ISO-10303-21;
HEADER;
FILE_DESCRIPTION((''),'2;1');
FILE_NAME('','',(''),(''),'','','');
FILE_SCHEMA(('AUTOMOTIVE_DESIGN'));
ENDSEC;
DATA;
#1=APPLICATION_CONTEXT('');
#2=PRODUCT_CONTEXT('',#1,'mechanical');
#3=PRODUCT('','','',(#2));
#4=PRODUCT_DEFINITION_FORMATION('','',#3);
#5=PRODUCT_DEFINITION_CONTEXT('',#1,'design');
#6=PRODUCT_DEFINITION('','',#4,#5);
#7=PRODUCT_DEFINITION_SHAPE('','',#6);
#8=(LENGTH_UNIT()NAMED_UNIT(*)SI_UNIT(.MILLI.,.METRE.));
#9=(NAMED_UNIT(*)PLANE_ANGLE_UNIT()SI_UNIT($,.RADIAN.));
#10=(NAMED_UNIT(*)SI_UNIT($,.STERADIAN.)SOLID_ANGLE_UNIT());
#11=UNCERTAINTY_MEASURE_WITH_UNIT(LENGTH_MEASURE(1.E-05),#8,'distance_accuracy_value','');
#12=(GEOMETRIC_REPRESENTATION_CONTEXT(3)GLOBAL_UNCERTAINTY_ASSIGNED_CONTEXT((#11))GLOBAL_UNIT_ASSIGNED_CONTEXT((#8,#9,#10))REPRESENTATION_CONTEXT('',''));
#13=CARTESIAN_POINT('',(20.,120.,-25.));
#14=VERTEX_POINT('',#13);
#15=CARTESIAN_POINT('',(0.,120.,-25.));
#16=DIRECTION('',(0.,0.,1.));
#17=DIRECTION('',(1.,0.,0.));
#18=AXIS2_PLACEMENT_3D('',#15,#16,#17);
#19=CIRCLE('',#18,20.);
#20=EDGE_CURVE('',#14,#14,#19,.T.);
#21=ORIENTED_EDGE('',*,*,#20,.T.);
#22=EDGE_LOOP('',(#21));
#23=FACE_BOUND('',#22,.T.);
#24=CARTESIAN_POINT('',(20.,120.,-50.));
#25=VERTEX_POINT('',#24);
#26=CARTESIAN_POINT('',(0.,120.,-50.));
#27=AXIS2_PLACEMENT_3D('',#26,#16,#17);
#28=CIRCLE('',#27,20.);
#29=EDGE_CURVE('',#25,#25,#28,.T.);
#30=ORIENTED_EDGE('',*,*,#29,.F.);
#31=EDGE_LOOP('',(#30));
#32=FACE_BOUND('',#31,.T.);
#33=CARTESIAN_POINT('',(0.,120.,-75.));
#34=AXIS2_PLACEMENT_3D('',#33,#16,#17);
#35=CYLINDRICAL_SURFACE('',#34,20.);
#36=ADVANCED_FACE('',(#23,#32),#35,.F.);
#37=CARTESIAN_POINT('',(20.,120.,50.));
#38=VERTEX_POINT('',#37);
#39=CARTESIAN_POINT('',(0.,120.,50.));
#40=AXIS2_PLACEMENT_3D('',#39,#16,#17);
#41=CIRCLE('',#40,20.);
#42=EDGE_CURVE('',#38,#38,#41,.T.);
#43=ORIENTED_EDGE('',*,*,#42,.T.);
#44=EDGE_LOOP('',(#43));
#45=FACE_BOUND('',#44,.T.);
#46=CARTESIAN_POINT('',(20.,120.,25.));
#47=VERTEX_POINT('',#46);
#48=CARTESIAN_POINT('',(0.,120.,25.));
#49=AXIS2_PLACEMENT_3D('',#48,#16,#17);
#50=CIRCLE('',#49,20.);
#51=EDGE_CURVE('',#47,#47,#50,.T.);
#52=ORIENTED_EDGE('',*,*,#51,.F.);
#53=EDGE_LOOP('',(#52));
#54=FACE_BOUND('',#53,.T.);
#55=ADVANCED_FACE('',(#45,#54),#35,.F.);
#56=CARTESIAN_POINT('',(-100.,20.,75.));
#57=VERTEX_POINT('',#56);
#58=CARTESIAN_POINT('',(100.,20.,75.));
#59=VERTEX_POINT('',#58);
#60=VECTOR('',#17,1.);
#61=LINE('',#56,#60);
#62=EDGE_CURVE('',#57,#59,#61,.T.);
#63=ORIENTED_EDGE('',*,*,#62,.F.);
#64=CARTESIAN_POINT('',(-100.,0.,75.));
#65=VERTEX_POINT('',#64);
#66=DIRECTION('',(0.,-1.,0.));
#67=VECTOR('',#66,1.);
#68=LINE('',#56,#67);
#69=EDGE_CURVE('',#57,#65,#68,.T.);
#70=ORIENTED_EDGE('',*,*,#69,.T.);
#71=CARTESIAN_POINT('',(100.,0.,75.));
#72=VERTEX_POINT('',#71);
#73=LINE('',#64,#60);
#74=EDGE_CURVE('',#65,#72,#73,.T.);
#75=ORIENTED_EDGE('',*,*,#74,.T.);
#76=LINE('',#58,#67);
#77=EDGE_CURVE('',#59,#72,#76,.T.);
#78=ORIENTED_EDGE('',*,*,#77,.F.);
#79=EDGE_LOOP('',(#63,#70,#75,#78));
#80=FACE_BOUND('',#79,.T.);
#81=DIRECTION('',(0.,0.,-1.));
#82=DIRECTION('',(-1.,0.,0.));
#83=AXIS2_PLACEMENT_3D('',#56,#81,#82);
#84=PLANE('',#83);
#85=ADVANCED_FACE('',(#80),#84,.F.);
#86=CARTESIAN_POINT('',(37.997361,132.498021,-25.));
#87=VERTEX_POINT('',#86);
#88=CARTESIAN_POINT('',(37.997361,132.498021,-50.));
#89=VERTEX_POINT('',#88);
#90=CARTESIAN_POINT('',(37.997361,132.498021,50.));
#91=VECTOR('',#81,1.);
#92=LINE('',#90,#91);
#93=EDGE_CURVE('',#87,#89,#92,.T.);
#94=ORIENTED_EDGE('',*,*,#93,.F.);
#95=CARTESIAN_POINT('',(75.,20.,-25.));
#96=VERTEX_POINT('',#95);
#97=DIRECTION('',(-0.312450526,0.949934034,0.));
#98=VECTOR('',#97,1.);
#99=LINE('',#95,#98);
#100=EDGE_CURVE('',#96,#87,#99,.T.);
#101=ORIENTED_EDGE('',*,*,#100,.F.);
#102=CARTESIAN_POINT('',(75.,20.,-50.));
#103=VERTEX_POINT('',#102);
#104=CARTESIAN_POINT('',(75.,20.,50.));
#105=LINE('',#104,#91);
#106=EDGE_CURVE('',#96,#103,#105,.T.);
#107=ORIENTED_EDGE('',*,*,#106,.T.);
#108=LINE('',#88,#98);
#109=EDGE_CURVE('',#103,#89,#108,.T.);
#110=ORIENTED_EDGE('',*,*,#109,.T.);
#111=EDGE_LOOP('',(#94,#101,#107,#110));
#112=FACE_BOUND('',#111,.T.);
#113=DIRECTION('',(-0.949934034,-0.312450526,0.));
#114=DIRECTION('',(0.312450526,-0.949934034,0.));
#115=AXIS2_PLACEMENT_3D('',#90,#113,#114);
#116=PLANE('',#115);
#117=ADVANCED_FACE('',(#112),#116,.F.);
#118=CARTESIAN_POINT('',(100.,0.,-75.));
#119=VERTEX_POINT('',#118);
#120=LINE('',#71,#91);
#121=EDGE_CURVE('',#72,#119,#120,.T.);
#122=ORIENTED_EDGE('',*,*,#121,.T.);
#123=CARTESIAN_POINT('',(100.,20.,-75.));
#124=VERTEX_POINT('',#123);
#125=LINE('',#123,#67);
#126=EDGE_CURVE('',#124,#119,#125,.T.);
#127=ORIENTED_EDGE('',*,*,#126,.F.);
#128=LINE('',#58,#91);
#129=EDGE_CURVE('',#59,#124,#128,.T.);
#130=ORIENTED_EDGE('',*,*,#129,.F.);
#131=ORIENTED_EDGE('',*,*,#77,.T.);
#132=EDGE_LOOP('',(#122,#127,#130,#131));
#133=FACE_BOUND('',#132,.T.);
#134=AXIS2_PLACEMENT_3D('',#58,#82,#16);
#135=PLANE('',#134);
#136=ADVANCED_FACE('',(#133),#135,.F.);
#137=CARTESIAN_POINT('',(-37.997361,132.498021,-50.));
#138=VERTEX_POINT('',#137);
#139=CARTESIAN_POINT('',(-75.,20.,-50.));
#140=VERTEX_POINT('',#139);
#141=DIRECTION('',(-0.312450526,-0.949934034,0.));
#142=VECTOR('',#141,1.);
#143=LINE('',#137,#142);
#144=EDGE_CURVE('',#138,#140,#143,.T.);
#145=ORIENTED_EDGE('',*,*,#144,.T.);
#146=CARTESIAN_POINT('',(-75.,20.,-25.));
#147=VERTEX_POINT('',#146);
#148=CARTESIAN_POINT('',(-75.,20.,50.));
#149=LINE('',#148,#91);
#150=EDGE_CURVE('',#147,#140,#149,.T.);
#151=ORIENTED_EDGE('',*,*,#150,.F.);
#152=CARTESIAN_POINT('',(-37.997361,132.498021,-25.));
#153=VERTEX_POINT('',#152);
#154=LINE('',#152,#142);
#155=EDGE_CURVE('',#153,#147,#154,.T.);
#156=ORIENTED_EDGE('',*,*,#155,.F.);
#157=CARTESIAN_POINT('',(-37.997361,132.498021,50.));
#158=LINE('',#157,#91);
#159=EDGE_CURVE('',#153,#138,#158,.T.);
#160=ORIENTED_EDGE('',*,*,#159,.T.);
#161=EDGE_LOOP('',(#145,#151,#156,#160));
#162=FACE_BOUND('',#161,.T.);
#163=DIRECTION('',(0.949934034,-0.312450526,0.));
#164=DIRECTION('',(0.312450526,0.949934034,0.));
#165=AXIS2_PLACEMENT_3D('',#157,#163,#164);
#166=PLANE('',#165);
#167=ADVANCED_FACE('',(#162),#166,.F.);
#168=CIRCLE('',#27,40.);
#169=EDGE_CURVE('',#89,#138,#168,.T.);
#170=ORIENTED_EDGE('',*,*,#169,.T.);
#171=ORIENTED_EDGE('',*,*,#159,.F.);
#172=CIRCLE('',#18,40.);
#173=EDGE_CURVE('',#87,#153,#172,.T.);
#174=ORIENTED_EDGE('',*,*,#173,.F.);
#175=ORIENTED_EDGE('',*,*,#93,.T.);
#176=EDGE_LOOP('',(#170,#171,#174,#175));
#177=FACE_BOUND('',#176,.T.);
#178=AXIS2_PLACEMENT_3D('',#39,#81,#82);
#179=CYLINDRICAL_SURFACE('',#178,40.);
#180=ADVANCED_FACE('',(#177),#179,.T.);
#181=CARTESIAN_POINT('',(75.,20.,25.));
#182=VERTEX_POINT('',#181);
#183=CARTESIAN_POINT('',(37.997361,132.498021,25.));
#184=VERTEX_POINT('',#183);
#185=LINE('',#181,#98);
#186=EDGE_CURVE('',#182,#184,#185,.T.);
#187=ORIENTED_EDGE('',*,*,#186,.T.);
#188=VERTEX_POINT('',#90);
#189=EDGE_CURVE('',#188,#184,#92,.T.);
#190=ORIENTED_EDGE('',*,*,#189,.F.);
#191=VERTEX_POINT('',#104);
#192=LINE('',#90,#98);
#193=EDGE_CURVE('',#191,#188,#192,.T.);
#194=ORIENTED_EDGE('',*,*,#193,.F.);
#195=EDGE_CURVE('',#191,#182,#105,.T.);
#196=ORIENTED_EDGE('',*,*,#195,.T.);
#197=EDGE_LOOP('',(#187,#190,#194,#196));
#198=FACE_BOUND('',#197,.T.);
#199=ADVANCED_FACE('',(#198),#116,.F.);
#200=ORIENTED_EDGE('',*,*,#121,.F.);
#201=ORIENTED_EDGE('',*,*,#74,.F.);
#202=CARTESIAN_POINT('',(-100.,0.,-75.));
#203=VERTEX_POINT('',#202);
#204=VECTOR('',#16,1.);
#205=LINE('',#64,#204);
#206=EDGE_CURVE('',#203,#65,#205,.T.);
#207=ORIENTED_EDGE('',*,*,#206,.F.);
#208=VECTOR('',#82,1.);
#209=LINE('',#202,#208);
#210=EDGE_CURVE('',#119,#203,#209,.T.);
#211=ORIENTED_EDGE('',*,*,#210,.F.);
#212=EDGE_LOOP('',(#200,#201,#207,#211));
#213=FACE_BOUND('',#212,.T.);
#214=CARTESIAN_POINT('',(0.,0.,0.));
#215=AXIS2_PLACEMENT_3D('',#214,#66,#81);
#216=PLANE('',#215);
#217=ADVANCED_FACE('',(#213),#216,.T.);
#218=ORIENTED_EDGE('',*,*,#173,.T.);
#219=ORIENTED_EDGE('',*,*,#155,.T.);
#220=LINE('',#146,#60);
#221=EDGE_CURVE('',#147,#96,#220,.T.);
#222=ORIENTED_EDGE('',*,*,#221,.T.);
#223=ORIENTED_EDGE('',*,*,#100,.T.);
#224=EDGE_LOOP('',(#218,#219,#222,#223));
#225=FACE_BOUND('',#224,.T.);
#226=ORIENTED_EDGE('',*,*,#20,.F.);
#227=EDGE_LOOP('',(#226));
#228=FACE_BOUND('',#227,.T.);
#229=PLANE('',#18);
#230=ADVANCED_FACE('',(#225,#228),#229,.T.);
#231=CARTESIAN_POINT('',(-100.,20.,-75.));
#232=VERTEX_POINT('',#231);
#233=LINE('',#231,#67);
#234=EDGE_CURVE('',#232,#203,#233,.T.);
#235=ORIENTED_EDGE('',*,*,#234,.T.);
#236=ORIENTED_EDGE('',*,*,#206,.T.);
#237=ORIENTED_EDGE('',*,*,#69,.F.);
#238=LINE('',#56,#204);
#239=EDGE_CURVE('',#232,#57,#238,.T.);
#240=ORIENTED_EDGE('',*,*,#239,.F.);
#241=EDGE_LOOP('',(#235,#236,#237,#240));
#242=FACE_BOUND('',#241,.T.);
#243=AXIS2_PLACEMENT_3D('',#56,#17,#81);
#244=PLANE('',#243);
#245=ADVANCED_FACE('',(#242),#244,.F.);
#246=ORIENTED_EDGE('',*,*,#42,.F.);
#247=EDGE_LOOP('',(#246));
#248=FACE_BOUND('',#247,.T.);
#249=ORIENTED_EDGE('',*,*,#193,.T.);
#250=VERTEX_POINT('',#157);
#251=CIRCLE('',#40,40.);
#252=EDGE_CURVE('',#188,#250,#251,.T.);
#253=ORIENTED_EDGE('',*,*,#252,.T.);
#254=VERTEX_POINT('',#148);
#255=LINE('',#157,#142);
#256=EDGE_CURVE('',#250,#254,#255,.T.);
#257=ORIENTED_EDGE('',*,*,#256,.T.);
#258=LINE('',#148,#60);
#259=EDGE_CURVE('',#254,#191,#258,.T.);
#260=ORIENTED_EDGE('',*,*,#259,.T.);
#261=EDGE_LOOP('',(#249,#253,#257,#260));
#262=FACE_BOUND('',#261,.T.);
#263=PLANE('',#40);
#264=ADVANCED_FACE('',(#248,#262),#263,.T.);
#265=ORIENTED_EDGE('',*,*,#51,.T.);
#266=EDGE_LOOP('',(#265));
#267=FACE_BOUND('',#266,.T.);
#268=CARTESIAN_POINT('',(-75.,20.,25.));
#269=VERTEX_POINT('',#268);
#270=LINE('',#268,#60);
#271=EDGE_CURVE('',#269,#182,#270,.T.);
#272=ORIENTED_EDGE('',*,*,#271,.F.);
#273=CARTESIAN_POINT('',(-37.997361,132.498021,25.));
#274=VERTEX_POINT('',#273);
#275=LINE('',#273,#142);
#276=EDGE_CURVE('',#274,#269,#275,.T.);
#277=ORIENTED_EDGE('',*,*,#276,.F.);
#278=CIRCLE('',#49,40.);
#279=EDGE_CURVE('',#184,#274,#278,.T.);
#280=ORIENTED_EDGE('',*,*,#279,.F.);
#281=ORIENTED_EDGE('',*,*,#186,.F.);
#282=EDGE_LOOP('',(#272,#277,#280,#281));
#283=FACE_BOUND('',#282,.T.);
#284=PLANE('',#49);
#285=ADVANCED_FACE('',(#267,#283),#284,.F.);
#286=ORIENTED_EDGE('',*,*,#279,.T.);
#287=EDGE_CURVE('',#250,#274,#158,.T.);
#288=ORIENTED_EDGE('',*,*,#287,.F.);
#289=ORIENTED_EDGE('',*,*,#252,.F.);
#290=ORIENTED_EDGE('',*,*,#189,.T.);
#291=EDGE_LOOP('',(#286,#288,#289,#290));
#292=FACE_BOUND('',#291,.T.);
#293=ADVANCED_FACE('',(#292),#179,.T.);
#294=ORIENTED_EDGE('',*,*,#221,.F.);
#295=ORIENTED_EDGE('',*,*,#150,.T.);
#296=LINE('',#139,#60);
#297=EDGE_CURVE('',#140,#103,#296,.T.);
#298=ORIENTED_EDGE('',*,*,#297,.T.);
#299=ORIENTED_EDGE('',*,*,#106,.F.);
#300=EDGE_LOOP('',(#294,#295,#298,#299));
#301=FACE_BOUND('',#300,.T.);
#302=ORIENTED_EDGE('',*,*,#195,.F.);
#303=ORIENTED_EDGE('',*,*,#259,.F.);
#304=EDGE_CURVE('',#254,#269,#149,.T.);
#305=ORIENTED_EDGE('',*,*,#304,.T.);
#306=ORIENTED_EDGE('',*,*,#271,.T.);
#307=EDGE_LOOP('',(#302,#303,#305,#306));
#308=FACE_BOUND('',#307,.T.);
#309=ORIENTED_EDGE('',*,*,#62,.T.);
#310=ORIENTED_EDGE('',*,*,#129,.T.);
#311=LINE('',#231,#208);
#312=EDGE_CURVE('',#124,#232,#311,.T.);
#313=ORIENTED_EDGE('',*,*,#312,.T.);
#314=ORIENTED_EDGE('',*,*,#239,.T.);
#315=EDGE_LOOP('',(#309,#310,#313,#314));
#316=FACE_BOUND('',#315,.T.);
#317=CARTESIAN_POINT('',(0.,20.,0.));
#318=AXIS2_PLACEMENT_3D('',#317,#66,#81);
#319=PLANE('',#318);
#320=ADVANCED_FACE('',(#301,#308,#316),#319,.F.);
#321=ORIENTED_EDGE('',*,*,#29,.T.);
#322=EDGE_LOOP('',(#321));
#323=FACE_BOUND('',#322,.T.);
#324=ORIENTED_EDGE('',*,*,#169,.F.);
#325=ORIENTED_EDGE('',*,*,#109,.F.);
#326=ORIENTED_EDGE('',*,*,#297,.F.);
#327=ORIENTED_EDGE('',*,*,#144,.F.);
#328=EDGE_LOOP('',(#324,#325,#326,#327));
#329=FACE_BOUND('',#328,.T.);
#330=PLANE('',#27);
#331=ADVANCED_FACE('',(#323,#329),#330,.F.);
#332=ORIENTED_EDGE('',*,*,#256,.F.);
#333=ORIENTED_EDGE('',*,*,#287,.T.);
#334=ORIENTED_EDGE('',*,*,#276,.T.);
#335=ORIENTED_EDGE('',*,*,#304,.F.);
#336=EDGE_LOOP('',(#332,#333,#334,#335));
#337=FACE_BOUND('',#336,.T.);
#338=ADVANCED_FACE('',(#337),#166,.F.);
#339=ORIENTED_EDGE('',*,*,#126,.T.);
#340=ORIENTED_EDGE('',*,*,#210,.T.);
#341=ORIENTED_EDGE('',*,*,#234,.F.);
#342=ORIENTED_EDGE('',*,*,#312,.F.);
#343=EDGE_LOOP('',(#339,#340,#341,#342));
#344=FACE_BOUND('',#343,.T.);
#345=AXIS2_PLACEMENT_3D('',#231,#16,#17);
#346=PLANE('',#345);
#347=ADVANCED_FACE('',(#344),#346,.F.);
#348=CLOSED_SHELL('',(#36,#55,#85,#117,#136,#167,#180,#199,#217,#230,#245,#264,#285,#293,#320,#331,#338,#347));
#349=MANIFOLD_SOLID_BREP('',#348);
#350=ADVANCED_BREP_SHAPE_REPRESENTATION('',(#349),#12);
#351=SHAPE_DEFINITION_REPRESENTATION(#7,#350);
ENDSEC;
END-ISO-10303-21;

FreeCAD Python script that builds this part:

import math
import FreeCAD as App
import Part
import Sketcher


def add_polygon(sketch, points):
    """Adds a closed chain of lines whose ends are joined by coincident constraints."""
    first, n = sketch.GeometryCount, len(points)
    for a, b in zip(points, points[1:] + points[:1]):
        sketch.addGeometry(Part.LineSegment(App.Vector(*a, 0), App.Vector(*b, 0)), False)
    for i in range(n):
        sketch.addConstraint(Sketcher.Constraint("Coincident", first + i, 2, first + (i + 1) % n, 1))

doc = App.newDocument("Part")
body = doc.addObject("PartDesign::Body", "Body")

# Sketch on XZ plane
sketch1 = body.newObject("Sketcher::SketchObject", "Sketch")
sketch1.AttachmentSupport = (doc.getObject("XZ_Plane"), [""])
sketch1.MapMode = "FlatFace"
add_polygon(sketch1, [(-100, -75), (-100, 75), (100, 75), (100, -75)])  # lines 0-3
sketch1.addConstraint([
    Sketcher.Constraint("Vertical", 0),
    Sketcher.Constraint("Horizontal", 1),
    Sketcher.Constraint("Vertical", 2),
    Sketcher.Constraint("Horizontal", 3),
    Sketcher.Constraint("Symmetric", 0, 2, 2, 2, -1, 1),
    Sketcher.Constraint("DistanceX", 1, 1, 1, 2, 200.0),
    Sketcher.Constraint("DistanceY", 0, 1, 0, 2, 150.0),
])
pad1 = body.newObject("PartDesign::Pad", "Pad")
pad1.Profile = sketch1
pad1.Length = 20
pad1.Reversed = True

# Sketch on XY plane
sketch2 = body.newObject("Sketcher::SketchObject", "Sketch001")
sketch2.AttachmentSupport = (doc.getObject("XY_Plane"), [""])
sketch2.MapMode = "FlatFace"
sketch2.addGeometry([
    Part.LineSegment(App.Vector(-37.997361, 132.498021, 0), App.Vector(-75, 20, 0)),
    Part.LineSegment(App.Vector(-75, 20, 0), App.Vector(75, 20, 0)),
    Part.LineSegment(App.Vector(75, 20, 0), App.Vector(37.997361, 132.498021, 0)),
    Part.ArcOfCircle(Part.Circle(App.Vector(0, 120, 0), App.Vector(0, 0, 1), 40), math.radians(18.206973), math.radians(161.793027)),
], False)
sketch2.addConstraint([
    Sketcher.Constraint("Coincident", 0, 2, 1, 1),
    Sketcher.Constraint("Coincident", 1, 2, 2, 1),
    Sketcher.Constraint("Tangent", 2, 2, 3, 1),
    Sketcher.Constraint("Tangent", 3, 2, 0, 1),
    Sketcher.Constraint("Horizontal", 1),
    Sketcher.Constraint("Symmetric", 2, 2, 3, 2, -2),
    Sketcher.Constraint("Radius", 3, 40.0),
    Sketcher.Constraint("DistanceX", 1, 1, 1, 2, 150.0),
    Sketcher.Constraint("DistanceY", -1, 1, 3, 3, 120.0),
    Sketcher.Constraint("DistanceY", -1, 1, 0, 2, 20.0),
])
pad2 = body.newObject("PartDesign::Pad", "Pad001")
pad2.Profile = sketch2
pad2.Length = 100
pad2.Midplane = True

# Sketch on XY plane
sketch3 = body.newObject("Sketcher::SketchObject", "Sketch002")
sketch3.AttachmentSupport = (doc.getObject("XY_Plane"), [""])
sketch3.MapMode = "FlatFace"
sketch3.addGeometry([
    Part.LineSegment(App.Vector(-37.997361, 132.498021, 0), App.Vector(-75, 20, 0)),
    Part.LineSegment(App.Vector(-75, 20, 0), App.Vector(75, 20, 0)),
    Part.LineSegment(App.Vector(75, 20, 0), App.Vector(37.997361, 132.498021, 0)),
    Part.ArcOfCircle(Part.Circle(App.Vector(0, 120, 0), App.Vector(0, 0, 1), 40), math.radians(18.206973), math.radians(161.793027)),
], False)
sketch3.addConstraint([
    Sketcher.Constraint("Coincident", 0, 2, 1, 1),
    Sketcher.Constraint("Coincident", 1, 2, 2, 1),
    Sketcher.Constraint("Tangent", 2, 2, 3, 1),
    Sketcher.Constraint("Tangent", 3, 2, 0, 1),
    Sketcher.Constraint("Horizontal", 1),
    Sketcher.Constraint("Symmetric", 2, 2, 3, 2, -2),
    Sketcher.Constraint("Radius", 3, 40.0),
    Sketcher.Constraint("DistanceX", 1, 1, 1, 2, 150.0),
    Sketcher.Constraint("DistanceY", -1, 1, 3, 3, 120.0),
    Sketcher.Constraint("DistanceY", -1, 1, 0, 2, 20.0),
])
pocket1 = body.newObject("PartDesign::Pocket", "Pocket")
pocket1.Profile = sketch3
pocket1.Length = 50
pocket1.Midplane = True

# Sketch on XY plane
sketch4 = body.newObject("Sketcher::SketchObject", "Sketch003")
sketch4.AttachmentSupport = (doc.getObject("XY_Plane"), [""])
sketch4.MapMode = "FlatFace"
sketch4.AttachmentOffset = App.Placement(App.Vector(0, 0, 50), App.Rotation())
sketch4.addGeometry(Part.Circle(App.Vector(0, 120, 0), App.Vector(0, 0, 1), 20), False)
sketch4.addConstraint([
    Sketcher.Constraint("PointOnObject", 0, 3, -2),
    Sketcher.Constraint("Diameter", 0, 40.0),
    Sketcher.Constraint("DistanceY", -1, 1, 0, 3, 120.0),
])
pocket2 = body.newObject("PartDesign::Pocket", "Pocket001")
pocket2.Profile = sketch4
pocket2.Type = "ThroughAll"

doc.recompute()
